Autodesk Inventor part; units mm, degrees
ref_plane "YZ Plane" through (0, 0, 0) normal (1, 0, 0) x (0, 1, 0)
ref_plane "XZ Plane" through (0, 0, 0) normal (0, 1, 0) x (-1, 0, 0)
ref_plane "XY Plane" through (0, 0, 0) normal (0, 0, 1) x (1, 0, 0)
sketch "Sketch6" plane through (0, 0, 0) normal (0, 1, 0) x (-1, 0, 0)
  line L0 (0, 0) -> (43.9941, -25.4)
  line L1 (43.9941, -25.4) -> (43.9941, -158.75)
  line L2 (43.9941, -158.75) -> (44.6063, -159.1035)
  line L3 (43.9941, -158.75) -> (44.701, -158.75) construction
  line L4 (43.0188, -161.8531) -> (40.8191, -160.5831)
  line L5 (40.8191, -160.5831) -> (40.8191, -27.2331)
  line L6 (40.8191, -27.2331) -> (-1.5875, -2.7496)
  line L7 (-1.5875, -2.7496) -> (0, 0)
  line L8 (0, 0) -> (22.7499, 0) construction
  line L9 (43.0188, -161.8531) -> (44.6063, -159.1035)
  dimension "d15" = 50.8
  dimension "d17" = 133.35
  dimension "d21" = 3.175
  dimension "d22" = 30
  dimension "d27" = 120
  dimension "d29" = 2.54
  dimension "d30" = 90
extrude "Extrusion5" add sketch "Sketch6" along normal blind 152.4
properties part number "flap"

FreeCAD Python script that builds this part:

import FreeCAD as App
import Part
import Sketcher

V = App.Vector
Q = App.Units.Quantity


def add_polygon(sketch, points):
    """Adds a closed chain of lines whose ends are joined by coincident constraints."""
    first, n = sketch.GeometryCount, len(points)
    for a, b in zip(points, points[1:] + points[:1]):
        sketch.addGeometry(Part.LineSegment(App.Vector(*a, 0), App.Vector(*b, 0)), False)
    for i in range(n):
        sketch.addConstraint(Sketcher.Constraint("Coincident", first + i, 2, first + (i + 1) % n, 1))

doc = App.newDocument("Part")
body = doc.addObject("PartDesign::Body", "Body")

# Sketch on XZ plane
sketch1 = body.newObject("Sketcher::SketchObject", "Sketch")
sketch1.AttachmentSupport = (doc.getObject("XZ_Plane"), [""])
sketch1.MapMode = "FlatFace"
add_polygon(sketch1, [(-44, -25.4), (0, 0), (1.6, -2.7), (-40.8, -27.2), (-40.8, -160.6), (-43, -161.9), (-44.6, -159.1), (-44, -158.8)])  # lines 0-7
sketch1.addConstraint(Sketcher.Constraint("Vertical", 3))
sketch1.addConstraint(Sketcher.Constraint("Vertical", 7))
sketch1.addConstraint(Sketcher.Constraint("Coincident", 0, 2, -1, 1))
sketch1.addConstraint(Sketcher.Constraint("Perpendicular", 0, 1))
sketch1.addConstraint(Sketcher.Constraint("Perpendicular", 1, 2))
sketch1.addConstraint(Sketcher.Constraint("Parallel", 2, 4))
sketch1.addConstraint(Sketcher.Constraint("Perpendicular", 4, 5))
sketch1.addConstraint(Sketcher.Constraint("Perpendicular", 5, 6))
sketch1.addConstraint(Sketcher.Constraint("Equal", 3, 7))
sketch1.addConstraint(Sketcher.Constraint("Distance", 0, Q("2 in")))
sketch1.addConstraint(Sketcher.Constraint("Angle", 0, Q("30 deg")))
sketch1.addConstraint(Sketcher.Constraint("Distance", 4, Q("0.1 in")))
sketch1.addConstraint(Sketcher.Constraint("DistanceY", 3, 2, 3, 1, Q("5.25 in")))
sketch1.addConstraint(Sketcher.Constraint("Distance", 1, Q("0.125 in")))
sketch1.addConstraint(Sketcher.Constraint("DistanceX", 6, 2, 3, 2, Q("0.125 in")))
pad1 = body.newObject("PartDesign::Pad", "Pad")
pad1.Profile = sketch1
pad1.Length = Q("6 in")
pad1.Reversed = True

doc.recompute()
